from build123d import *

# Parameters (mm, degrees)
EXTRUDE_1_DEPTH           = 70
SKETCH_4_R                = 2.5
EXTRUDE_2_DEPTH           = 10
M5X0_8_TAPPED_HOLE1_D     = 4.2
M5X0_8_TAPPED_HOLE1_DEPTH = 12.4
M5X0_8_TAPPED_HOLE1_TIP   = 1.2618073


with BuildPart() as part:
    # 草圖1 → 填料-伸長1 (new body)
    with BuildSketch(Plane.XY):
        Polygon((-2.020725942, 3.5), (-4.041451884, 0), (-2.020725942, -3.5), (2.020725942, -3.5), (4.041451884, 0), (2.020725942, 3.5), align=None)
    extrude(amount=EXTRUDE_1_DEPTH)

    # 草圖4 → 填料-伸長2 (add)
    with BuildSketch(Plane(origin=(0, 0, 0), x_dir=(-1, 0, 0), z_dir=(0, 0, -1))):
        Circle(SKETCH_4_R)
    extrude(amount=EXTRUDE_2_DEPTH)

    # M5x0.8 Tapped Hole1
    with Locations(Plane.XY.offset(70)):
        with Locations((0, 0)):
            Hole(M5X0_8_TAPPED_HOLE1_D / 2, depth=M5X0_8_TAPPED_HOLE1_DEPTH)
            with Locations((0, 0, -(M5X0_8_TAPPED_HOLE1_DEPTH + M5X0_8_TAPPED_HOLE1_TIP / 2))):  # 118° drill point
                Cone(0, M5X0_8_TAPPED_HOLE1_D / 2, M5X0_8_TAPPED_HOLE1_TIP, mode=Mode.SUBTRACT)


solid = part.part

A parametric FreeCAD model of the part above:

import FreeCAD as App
import Part
import Sketcher
Q = App.Units.Quantity

doc = App.newDocument("Part")
body = doc.addObject("PartDesign::Body", "Body")

# Sketch on XY plane
sketch1 = doc.addObject("Sketcher::SketchObject", "Sketch")
body.addObject(sketch1)
sketch1.AttachmentSupport = (doc.XY_Plane, [""])
sketch1.MapMode = "FlatFace"
sketch1.addGeometry([
    Part.LineSegment(App.Vector(-2, 3.5, 0), App.Vector(-4, 0, 0)),  # 0
    Part.LineSegment(App.Vector(-4, 0, 0), App.Vector(-2, -3.5, 0)),  # 1
    Part.LineSegment(App.Vector(-2, -3.5, 0), App.Vector(2, -3.5, 0)),  # 2
    Part.LineSegment(App.Vector(2, -3.5, 0), App.Vector(4, 0, 0)),  # 3
    Part.LineSegment(App.Vector(4, 0, 0), App.Vector(2, 3.5, 0)),  # 4
    Part.LineSegment(App.Vector(2, 3.5, 0), App.Vector(-2, 3.5, 0)),  # 5
], False)
sketch1.addConstraint([
    Sketcher.Constraint("Coincident", 0, 2, 1, 1),
    Sketcher.Constraint("Coincident", 1, 2, 2, 1),
    Sketcher.Constraint("Coincident", 2, 2, 3, 1),
    Sketcher.Constraint("Coincident", 3, 2, 4, 1),
    Sketcher.Constraint("Coincident", 4, 2, 5, 1),
    Sketcher.Constraint("Coincident", 5, 2, 0, 1),
    Sketcher.Constraint("Horizontal", 2),
    Sketcher.Constraint("Horizontal", 5),
    Sketcher.Constraint("Symmetric", 0, 2, 3, 2, -1, 1),
    Sketcher.Constraint("Symmetric", 1, 2, 4, 2, -1, 1),
    Sketcher.Constraint("PointOnObject", 0, 2, -1),
    Sketcher.Constraint("Parallel", 0, 3),
    Sketcher.Constraint("Vertical", 2, 2, 4, 2),
    Sketcher.Constraint("Angle", 0, Q("-120 deg")),
    Sketcher.Constraint("DistanceY", 2, 2, 4, 2, 7.0),
    Sketcher.Constraint("DistanceX", 2, 1, 2, 2, 4.041452),
])
pad1 = doc.addObject("PartDesign::Pad", "Pad")
body.addObject(pad1)
pad1.Profile = sketch1
pad1.Length = 70

# Sketch on XY plane
sketch2 = doc.addObject("Sketcher::SketchObject", "Sketch001")
body.addObject(sketch2)
sketch2.AttachmentSupport = (doc.XY_Plane, [""])
sketch2.MapMode = "FlatFace"
sketch2.addGeometry(Part.Circle(App.Vector(0, 0, 0), App.Vector(0, 0, 1), 2.5), False)
sketch2.addConstraint([
    Sketcher.Constraint("Coincident", 0, 3, -1, 1),
    Sketcher.Constraint("Diameter", 0, 5.0),
])
pad2 = doc.addObject("PartDesign::Pad", "Pad001")
body.addObject(pad2)
pad2.Profile = sketch2
pad2.Length = 10
pad2.Reversed = True

# Sketch on XY plane
sketch3 = doc.addObject("Sketcher::SketchObject", "Sketch002")
body.addObject(sketch3)
sketch3.AttachmentSupport = (doc.XY_Plane, [""])
sketch3.MapMode = "FlatFace"
sketch3.AttachmentOffset = App.Placement(App.Vector(0, 0, 70), App.Rotation())
sketch3.addGeometry(Part.Circle(App.Vector(0, 0, 0), App.Vector(0, 0, 1), 2.1), False)
sketch3.addConstraint([
    Sketcher.Constraint("Coincident", 0, 3, -1, 1),
    Sketcher.Constraint("Diameter", 0, 4.2),
])
doc.recompute()
hole = doc.addObject("PartDesign::Hole", "Hole")
body.addObject(hole)
hole.Profile = sketch3
hole.ThreadType = "None"
hole.Diameter = 4.2
hole.DepthType = "Dimension"
hole.Depth = 12.4
hole.DrillPoint = "Angled"
hole.DrillPointAngle = 118

doc.recompute()
